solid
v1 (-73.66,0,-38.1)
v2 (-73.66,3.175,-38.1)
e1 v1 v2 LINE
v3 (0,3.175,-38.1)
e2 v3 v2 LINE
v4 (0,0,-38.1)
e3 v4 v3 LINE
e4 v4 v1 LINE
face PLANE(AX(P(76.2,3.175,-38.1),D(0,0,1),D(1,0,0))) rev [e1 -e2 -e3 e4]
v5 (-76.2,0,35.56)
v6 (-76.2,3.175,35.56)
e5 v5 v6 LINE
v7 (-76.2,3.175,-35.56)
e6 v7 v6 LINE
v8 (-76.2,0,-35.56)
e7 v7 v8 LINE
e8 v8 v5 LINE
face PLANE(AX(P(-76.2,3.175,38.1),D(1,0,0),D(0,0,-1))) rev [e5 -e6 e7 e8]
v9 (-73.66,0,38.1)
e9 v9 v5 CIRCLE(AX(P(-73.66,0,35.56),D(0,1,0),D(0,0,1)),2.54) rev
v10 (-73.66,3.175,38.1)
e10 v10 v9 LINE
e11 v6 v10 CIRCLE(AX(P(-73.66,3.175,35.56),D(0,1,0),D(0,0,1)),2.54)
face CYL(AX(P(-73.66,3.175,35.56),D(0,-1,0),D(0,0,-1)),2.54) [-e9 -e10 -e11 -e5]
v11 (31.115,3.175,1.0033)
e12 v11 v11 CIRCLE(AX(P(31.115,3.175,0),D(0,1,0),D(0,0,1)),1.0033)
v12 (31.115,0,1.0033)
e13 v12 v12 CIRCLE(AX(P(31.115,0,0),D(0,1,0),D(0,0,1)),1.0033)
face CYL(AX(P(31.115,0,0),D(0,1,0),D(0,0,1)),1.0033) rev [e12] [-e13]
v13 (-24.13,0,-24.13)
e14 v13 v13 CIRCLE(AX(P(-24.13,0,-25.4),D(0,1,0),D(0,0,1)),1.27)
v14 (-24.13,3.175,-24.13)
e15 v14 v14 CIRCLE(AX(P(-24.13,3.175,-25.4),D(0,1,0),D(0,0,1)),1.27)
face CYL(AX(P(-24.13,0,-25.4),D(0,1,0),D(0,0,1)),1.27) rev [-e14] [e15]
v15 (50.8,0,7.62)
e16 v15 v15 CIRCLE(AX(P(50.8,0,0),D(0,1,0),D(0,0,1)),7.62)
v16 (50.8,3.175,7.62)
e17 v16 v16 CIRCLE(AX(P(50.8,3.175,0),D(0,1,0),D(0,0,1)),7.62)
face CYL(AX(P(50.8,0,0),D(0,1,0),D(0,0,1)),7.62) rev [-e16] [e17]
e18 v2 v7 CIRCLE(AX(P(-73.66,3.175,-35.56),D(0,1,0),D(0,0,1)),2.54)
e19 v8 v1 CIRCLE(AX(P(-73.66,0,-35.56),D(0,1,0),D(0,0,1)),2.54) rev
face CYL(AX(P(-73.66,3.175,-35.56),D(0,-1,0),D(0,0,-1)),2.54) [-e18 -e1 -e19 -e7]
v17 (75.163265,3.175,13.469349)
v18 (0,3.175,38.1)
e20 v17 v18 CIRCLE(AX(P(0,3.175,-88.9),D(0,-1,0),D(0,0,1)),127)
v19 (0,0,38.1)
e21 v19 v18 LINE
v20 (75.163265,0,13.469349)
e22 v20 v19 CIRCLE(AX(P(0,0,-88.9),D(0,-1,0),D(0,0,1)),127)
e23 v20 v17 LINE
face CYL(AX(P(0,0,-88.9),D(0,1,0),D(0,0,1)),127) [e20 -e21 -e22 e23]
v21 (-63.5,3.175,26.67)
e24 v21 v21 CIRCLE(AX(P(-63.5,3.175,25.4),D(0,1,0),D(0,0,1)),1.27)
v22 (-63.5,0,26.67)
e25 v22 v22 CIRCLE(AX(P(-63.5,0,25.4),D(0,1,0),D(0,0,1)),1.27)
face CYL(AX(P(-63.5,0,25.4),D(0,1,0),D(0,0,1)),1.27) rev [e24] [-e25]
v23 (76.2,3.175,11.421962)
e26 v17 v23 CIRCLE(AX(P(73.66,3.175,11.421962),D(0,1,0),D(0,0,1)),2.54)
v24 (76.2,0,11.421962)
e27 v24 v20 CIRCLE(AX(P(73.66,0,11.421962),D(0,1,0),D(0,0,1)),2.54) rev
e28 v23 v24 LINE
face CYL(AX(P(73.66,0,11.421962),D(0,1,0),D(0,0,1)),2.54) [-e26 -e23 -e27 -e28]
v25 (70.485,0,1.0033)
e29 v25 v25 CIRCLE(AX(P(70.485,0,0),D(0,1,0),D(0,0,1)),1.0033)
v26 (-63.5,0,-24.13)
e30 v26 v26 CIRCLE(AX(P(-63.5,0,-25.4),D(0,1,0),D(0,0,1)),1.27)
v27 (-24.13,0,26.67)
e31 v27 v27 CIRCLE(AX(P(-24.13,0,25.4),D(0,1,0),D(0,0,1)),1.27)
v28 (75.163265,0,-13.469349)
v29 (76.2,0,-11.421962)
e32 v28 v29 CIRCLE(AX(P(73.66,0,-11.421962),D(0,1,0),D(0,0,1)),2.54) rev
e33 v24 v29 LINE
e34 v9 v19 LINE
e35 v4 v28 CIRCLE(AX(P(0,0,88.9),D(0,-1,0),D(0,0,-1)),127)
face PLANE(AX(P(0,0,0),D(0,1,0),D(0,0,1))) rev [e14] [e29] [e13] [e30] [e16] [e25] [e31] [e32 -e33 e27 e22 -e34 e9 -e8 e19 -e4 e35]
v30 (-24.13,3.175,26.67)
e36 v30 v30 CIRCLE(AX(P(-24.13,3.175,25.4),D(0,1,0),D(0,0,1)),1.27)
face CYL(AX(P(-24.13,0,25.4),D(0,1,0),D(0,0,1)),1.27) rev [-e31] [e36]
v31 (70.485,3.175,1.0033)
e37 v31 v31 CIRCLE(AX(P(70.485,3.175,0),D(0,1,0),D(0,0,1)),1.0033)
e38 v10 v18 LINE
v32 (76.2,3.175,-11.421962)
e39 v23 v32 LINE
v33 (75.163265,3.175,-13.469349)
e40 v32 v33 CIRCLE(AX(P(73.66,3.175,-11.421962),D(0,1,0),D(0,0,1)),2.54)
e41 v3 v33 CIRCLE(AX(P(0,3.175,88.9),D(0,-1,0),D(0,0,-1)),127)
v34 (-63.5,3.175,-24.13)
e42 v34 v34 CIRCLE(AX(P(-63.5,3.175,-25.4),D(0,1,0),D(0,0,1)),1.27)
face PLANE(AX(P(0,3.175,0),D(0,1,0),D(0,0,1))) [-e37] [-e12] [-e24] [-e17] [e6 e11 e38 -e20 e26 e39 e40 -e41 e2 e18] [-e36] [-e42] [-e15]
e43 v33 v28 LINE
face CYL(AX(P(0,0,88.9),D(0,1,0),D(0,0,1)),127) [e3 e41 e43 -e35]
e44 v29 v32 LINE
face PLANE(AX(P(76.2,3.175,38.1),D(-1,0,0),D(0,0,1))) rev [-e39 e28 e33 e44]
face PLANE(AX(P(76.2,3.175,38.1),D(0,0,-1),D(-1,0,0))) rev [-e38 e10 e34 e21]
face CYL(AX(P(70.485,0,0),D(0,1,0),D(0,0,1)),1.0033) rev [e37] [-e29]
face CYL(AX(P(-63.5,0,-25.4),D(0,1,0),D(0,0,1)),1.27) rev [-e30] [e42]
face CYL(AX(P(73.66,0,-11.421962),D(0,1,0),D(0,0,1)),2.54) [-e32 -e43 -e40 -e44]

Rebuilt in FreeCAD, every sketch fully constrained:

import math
import FreeCAD as App
import Part
import Sketcher
from FreeCAD import Vector
Q = App.Units.Quantity


def edges_at(feature, points):
    """Names of the edges that pass closest to the given points."""
    edges = feature.Shape.Edges
    near = lambda p: min(range(len(edges)), key=lambda i: edges[i].distToShape(Part.Vertex(*p))[0])
    return sorted({f"Edge{near(p) + 1}" for p in points})


def add_polygon(sketch, points):
    """Adds a closed chain of lines whose ends are joined by coincident constraints."""
    first, n = sketch.GeometryCount, len(points)
    for a, b in zip(points, points[1:] + points[:1]):
        sketch.addGeometry(Part.LineSegment(App.Vector(*a, 0), App.Vector(*b, 0)), False)
    for i in range(n):
        sketch.addConstraint(Sketcher.Constraint("Coincident", first + i, 2, first + (i + 1) % n, 1))

doc = App.newDocument("Part")
params = doc.addObject("Spreadsheet::Sheet", "Params")
for row, (alias, value) in enumerate([
    ("sketch1_width", "6 in"),
    ("sketch1_height", "3 in"),
    ("pad1_length", "0.125 in"),
    ("sketch2_radius", "5 in"),
    ("sketch2_width", "3 in"),
    ("pocket1_length", "0.125 in"),
    ("fillet_radius", "0.1 in"),
    ("fillet2_radius", "0.1 in"),
    ("sketch3_diameter", "0.6 in"),
    ("pocket2_length", "0.125 in"),
    ("sketch4_diameter", "0.1 in"),
    ("pocket3_length", "0.125 in"),
    ("sketch5_diameter", "0.079 in"),
], start=1):
    params.set(f"A{row}", alias)
    params.set(f"B{row}", "=" + value)
    params.setAlias(f"B{row}", alias)

body = doc.addObject("PartDesign::Body", "Body")

# Sketch on XZ plane
sketch1 = body.newObject("Sketcher::SketchObject", "Sketch")
sketch1.AttachmentSupport = (doc.getObject("XZ_Plane"), [""])
sketch1.MapMode = "FlatFace"
add_polygon(sketch1, [(-76.2, -38.1), (-76.2, 38.1), (76.2, 38.1), (76.2, -38.1)])  # lines 0-3
sketch1.addConstraint([
    Sketcher.Constraint("Vertical", 0),
    Sketcher.Constraint("Horizontal", 1),
    Sketcher.Constraint("Vertical", 2),
    Sketcher.Constraint("Horizontal", 3),
    Sketcher.Constraint("Symmetric", 0, 2, 2, 2, -1, 1),
    Sketcher.Constraint("DistanceX", 1, 1, 1, 2, Q("6 in")),
    Sketcher.Constraint("DistanceY", 0, 1, 0, 2, Q("3 in")),
])
sketch1.setExpression("Constraints[9]", "Params.sketch1_width")
sketch1.setExpression("Constraints[10]", "Params.sketch1_height")
pad1 = body.newObject("PartDesign::Pad", "Pad")
pad1.Profile = sketch1
pad1.setExpression("Length", "Params.pad1_length")
pad1.Reversed = True

# Sketch on XZ plane
sketch2 = body.newObject("Sketcher::SketchObject", "Sketch001")
sketch2.AttachmentSupport = (doc.getObject("XZ_Plane"), [""])
sketch2.MapMode = "FlatFace"
sketch2.AttachmentOffset = App.Placement(Vector(0, 0, -0.125 * 25.4), App.Rotation())
sketch2.addGeometry([
    Part.LineSegment(Vector(76.2, -38.1, 0), Vector(0, -38.1, 0)),  # 0
    Part.ArcOfCircle(Part.Circle(Vector(0, 88.9, 0), Vector(0, 0, 1), 127), math.radians(-90), math.radians(-53.130102)),  # 1
    Part.LineSegment(Vector(76.2, -12.7, 0), Vector(76.2, -38.1, 0)),  # 2
    Part.LineSegment(Vector(76.2, 38.1, 0), Vector(76.2, 12.7, 0)),  # 3
    Part.ArcOfCircle(Part.Circle(Vector(0, -88.9, 0), Vector(0, 0, 1), 127), math.radians(53.130102), math.radians(90)),  # 4
    Part.LineSegment(Vector(0, 38.1, 0), Vector(76.2, 38.1, 0)),  # 5
], False)
sketch2.addConstraint([
    Sketcher.Constraint("Tangent", 0, 2, 1, 1),
    Sketcher.Constraint("Coincident", 1, 2, 2, 1),
    Sketcher.Constraint("Coincident", 2, 2, 0, 1),
    Sketcher.Constraint("Coincident", 3, 2, 4, 1),
    Sketcher.Constraint("Tangent", 4, 2, 5, 1),
    Sketcher.Constraint("Coincident", 5, 2, 3, 1),
    Sketcher.Constraint("Horizontal", 0),
    Sketcher.Constraint("Vertical", 2),
    Sketcher.Constraint("Vertical", 3),
    Sketcher.Constraint("Horizontal", 5),
    Sketcher.Constraint("Equal", 1, 4),
    Sketcher.Constraint("Symmetric", 1, 3, 4, 3, -1, 1),
    Sketcher.Constraint("Symmetric", 1, 2, 3, 2, -1),
    Sketcher.Constraint("Radius", 1, Q("5 in")),
    Sketcher.Constraint("DistanceX", 0, 2, 0, 1, Q("3 in")),
    Sketcher.Constraint("DistanceY", 4, 3, 1, 3, Q("7 in")),
])
sketch2.setExpression("Constraints[13]", "Params.sketch2_radius")
sketch2.setExpression("Constraints[14]", "Params.sketch2_width")
pocket1 = body.newObject("PartDesign::Pocket", "Pocket")
pocket1.Profile = sketch2
pocket1.setExpression("Length", "Params.pocket1_length")
pocket1.Reversed = True
doc.recompute()

fillet = body.newObject("PartDesign::Fillet", "Fillet")
fillet.Base = (pocket1, edges_at(pocket1, [(76.2, 1.587, -12.7), (76.2, 1.587, 12.7)]))
fillet.setExpression("Radius", "Params.fillet_radius")
doc.recompute()

fillet2 = body.newObject("PartDesign::Fillet", "Fillet001")
fillet2.Base = (fillet, edges_at(fillet, [(-76.2, 1.587, -38.1), (-76.2, 1.587, 38.1)]))
fillet2.setExpression("Radius", "Params.fillet2_radius")

# Sketch on XZ plane
sketch3 = body.newObject("Sketcher::SketchObject", "Sketch002")
sketch3.AttachmentSupport = (doc.getObject("XZ_Plane"), [""])
sketch3.MapMode = "FlatFace"
sketch3.AttachmentOffset = App.Placement(Vector(0, 0, -0.125 * 25.4), App.Rotation())
sketch3.addGeometry(Part.Circle(Vector(50.8, 0, 0), Vector(0, 0, 1), 7.62), False)
sketch3.addConstraint([
    Sketcher.Constraint("PointOnObject", 0, 3, -1),
    Sketcher.Constraint("Diameter", 0, Q("0.6 in")),
    Sketcher.Constraint("DistanceX", -1, 1, 0, 3, Q("2 in")),
])
sketch3.setExpression("Constraints[1]", "Params.sketch3_diameter")
pocket2 = body.newObject("PartDesign::Pocket", "Pocket001")
pocket2.Profile = sketch3
pocket2.setExpression("Length", "Params.pocket2_length")
pocket2.Reversed = True

# Sketch on XZ plane
sketch4 = body.newObject("Sketcher::SketchObject", "Sketch003")
sketch4.AttachmentSupport = (doc.getObject("XZ_Plane"), [""])
sketch4.MapMode = "FlatFace"
sketch4.AttachmentOffset = App.Placement(Vector(0, 0, -0.125 * 25.4), App.Rotation())
sketch4.addGeometry([
    Part.Circle(Vector(-63.5, -25.4, 0), Vector(0, 0, 1), 1.27),
    Part.Circle(Vector(-63.5, 25.4, 0), Vector(0, 0, 1), 1.27),
    Part.Circle(Vector(-24.13, -25.4, 0), Vector(0, 0, 1), 1.27),
    Part.Circle(Vector(-24.13, 25.4, 0), Vector(0, 0, 1), 1.27),
], False)
sketch4.addConstraint([
    Sketcher.Constraint("Equal", 0, 1),
    Sketcher.Constraint("Equal", 1, 2),
    Sketcher.Constraint("Equal", 2, 3),
    Sketcher.Constraint("Symmetric", 0, 3, 1, 3, -1),
    Sketcher.Constraint("Symmetric", 2, 3, 3, 3, -1),
    Sketcher.Constraint("Horizontal", 0, 3, 2, 3),
    Sketcher.Constraint("Diameter", 0, Q("0.1 in")),
    Sketcher.Constraint("DistanceY", 0, 3, -1, 1, Q("1 in")),
    Sketcher.Constraint("DistanceX", 0, 3, -1, 1, Q("2.5 in")),
    Sketcher.Constraint("DistanceX", 2, 3, -1, 1, Q("0.95 in")),
])
sketch4.setExpression("Constraints[6]", "Params.sketch4_diameter")
pocket3 = body.newObject("PartDesign::Pocket", "Pocket002")
pocket3.Profile = sketch4
pocket3.setExpression("Length", "Params.pocket3_length")
pocket3.Reversed = True

# Sketch on XZ plane
sketch5 = body.newObject("Sketcher::SketchObject", "Sketch004")
sketch5.AttachmentSupport = (doc.getObject("XZ_Plane"), [""])
sketch5.MapMode = "FlatFace"
sketch5.AttachmentOffset = App.Placement(Vector(0, 0, -0.125 * 25.4), App.Rotation())
sketch5.addGeometry([
    Part.Circle(Vector(70.485, 0, 0), Vector(0, 0, 1), 1.0033),
    Part.Circle(Vector(31.115, 0, 0), Vector(0, 0, 1), 1.0033),
], False)
sketch5.addConstraint([
    Sketcher.Constraint("Equal", 0, 1),
    Sketcher.Constraint("PointOnObject", 0, 3, -1),
    Sketcher.Constraint("PointOnObject", 1, 3, -1),
    Sketcher.Constraint("Diameter", 0, Q("0.079 in")),
    Sketcher.Constraint("DistanceX", 1, 3, 0, 3, Q("1.55 in")),
    Sketcher.Constraint("DistanceX", -1, 1, 0, 3, Q("2.775 in")),
])
sketch5.setExpression("Constraints[3]", "Params.sketch5_diameter")
pocket4 = body.newObject("PartDesign::Pocket", "Pocket003")
pocket4.Profile = sketch5
pocket4.Type = "ThroughAll"
pocket4.Reversed = True

doc.recompute()
